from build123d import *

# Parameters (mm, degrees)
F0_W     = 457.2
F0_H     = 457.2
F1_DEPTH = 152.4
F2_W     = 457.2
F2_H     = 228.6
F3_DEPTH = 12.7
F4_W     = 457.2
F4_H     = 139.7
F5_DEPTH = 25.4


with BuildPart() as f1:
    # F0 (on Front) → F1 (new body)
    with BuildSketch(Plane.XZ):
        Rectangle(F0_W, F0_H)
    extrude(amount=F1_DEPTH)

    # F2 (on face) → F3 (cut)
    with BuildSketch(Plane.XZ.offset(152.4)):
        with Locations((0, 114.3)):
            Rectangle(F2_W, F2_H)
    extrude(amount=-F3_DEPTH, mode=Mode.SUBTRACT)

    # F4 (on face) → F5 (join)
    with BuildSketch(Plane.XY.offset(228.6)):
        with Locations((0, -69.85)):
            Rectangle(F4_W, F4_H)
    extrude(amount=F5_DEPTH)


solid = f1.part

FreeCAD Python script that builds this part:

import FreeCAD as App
import Part
import Sketcher
Q = App.Units.Quantity


def add_polygon(sketch, points):
    """Adds a closed chain of lines whose ends are joined by coincident constraints."""
    first, n = sketch.GeometryCount, len(points)
    for a, b in zip(points, points[1:] + points[:1]):
        sketch.addGeometry(Part.LineSegment(App.Vector(*a, 0), App.Vector(*b, 0)), False)
    for i in range(n):
        sketch.addConstraint(Sketcher.Constraint("Coincident", first + i, 2, first + (i + 1) % n, 1))

doc = App.newDocument("Part")
body = doc.addObject("PartDesign::Body", "Body")

# Sketch on XZ plane
sketch1 = body.newObject("Sketcher::SketchObject", "Sketch")
sketch1.AttachmentSupport = (doc.getObject("XZ_Plane"), [""])
sketch1.MapMode = "FlatFace"
add_polygon(sketch1, [(-228.6, 228.6), (-228.6, -228.6), (228.6, -228.6), (228.6, 228.6)])  # lines 0-3
sketch1.addConstraint(Sketcher.Constraint("Vertical", 0))
sketch1.addConstraint(Sketcher.Constraint("Horizontal", 1))
sketch1.addConstraint(Sketcher.Constraint("Vertical", 2))
sketch1.addConstraint(Sketcher.Constraint("Horizontal", 3))
sketch1.addConstraint(Sketcher.Constraint("Symmetric", 0, 2, 2, 2, -1, 1))
sketch1.addConstraint(Sketcher.Constraint("Equal", 3, 0))
sketch1.addConstraint(Sketcher.Constraint("DistanceX", 1, 1, 1, 2, Q("18 in")))
pad1 = body.newObject("PartDesign::Pad", "Pad")
pad1.Profile = sketch1
pad1.Length = Q("6 in")

# Sketch on XZ plane
sketch2 = body.newObject("Sketcher::SketchObject", "Sketch001")
sketch2.AttachmentSupport = (doc.getObject("XZ_Plane"), [""])
sketch2.MapMode = "FlatFace"
sketch2.AttachmentOffset = App.Placement(App.Vector(0, 0, 6 * 25.4), App.Rotation())
add_polygon(sketch2, [(-228.6, 228.6), (-228.6, 0), (228.6, 0), (228.6, 228.6)])  # lines 0-3
sketch2.addConstraint(Sketcher.Constraint("Vertical", 0))
sketch2.addConstraint(Sketcher.Constraint("Horizontal", 1))
sketch2.addConstraint(Sketcher.Constraint("Vertical", 2))
sketch2.addConstraint(Sketcher.Constraint("Horizontal", 3))
sketch2.addConstraint(Sketcher.Constraint("Symmetric", 0, 2, 1, 2, -1, 1))
sketch2.addConstraint(Sketcher.Constraint("DistanceX", 1, 1, 1, 2, Q("18 in")))
sketch2.addConstraint(Sketcher.Constraint("DistanceY", 0, 2, 0, 1, Q("9 in")))
pocket1 = body.newObject("PartDesign::Pocket", "Pocket")
pocket1.Profile = sketch2
pocket1.Length = Q("0.5 in")

# Sketch on XY plane
sketch3 = body.newObject("Sketcher::SketchObject", "Sketch002")
sketch3.AttachmentSupport = (doc.getObject("XY_Plane"), [""])
sketch3.MapMode = "FlatFace"
sketch3.AttachmentOffset = App.Placement(App.Vector(0, 0, 9 * 25.4), App.Rotation())
add_polygon(sketch3, [(-228.6, 0), (-228.6, -139.7), (228.6, -139.7), (228.6, 0)])  # lines 0-3
sketch3.addConstraint(Sketcher.Constraint("Vertical", 0))
sketch3.addConstraint(Sketcher.Constraint("Horizontal", 1))
sketch3.addConstraint(Sketcher.Constraint("Vertical", 2))
sketch3.addConstraint(Sketcher.Constraint("Horizontal", 3))
sketch3.addConstraint(Sketcher.Constraint("Symmetric", 2, 2, 3, 2, -1, 1))
sketch3.addConstraint(Sketcher.Constraint("DistanceX", 1, 1, 1, 2, Q("18 in")))
sketch3.addConstraint(Sketcher.Constraint("DistanceY", 0, 2, 0, 1, Q("5.5 in")))
pad2 = body.newObject("PartDesign::Pad", "Pad001")
pad2.Profile = sketch3
pad2.Length = Q("1 in")

doc.recompute()
